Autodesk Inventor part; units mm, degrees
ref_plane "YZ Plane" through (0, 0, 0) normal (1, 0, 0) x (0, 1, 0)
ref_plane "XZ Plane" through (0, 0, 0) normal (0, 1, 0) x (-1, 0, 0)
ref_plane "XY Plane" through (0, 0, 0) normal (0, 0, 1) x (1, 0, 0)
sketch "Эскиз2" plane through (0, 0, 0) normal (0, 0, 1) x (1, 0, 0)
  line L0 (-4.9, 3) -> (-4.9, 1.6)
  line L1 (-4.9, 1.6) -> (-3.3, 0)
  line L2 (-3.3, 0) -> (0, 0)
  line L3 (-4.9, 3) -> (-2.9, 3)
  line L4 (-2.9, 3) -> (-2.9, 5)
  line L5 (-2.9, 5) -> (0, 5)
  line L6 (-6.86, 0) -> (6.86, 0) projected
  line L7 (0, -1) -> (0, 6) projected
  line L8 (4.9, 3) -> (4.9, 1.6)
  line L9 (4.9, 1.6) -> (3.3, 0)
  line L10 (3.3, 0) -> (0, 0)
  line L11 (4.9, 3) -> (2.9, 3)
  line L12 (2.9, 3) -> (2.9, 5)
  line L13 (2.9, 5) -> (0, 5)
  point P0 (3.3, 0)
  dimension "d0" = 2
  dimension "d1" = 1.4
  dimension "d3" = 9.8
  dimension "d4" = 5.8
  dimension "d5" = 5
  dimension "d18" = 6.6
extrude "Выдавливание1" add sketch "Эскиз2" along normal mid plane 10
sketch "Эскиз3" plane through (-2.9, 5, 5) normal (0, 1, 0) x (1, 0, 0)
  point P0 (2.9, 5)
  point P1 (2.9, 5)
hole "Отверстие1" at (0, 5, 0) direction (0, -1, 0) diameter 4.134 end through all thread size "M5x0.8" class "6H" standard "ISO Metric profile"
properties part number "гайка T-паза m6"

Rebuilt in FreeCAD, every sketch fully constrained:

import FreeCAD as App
import Part
import Sketcher
from FreeCAD import Vector

doc = App.newDocument("Part")
body = doc.addObject("PartDesign::Body", "Body")

# Sketch on XY plane
sketch1 = body.newObject("Sketcher::SketchObject", "Sketch")
sketch1.AttachmentSupport = (doc.getObject("XY_Plane"), [""])
sketch1.MapMode = "FlatFace"
sketch1.addGeometry([
    Part.LineSegment(Vector(-2.9, 3, 0), Vector(-4.9, 3, 0)),  # 0
    Part.LineSegment(Vector(-4.9, 3, 0), Vector(-4.9, 1.6, 0)),  # 1
    Part.LineSegment(Vector(-4.9, 1.6, 0), Vector(-3.3, 0, 0)),  # 2
    Part.LineSegment(Vector(-3.3, 0, 0), Vector(3.3, 0, 0)),  # 3
    Part.LineSegment(Vector(3.3, 0, 0), Vector(4.9, 1.6, 0)),  # 4
    Part.LineSegment(Vector(4.9, 1.6, 0), Vector(4.9, 3, 0)),  # 5
    Part.LineSegment(Vector(4.9, 3, 0), Vector(2.9, 3, 0)),  # 6
    Part.LineSegment(Vector(2.9, 3, 0), Vector(2.9, 5, 0)),  # 7
    Part.LineSegment(Vector(2.9, 5, 0), Vector(-2.9, 5, 0)),  # 8
    Part.LineSegment(Vector(-2.9, 5, 0), Vector(-2.9, 3, 0)),  # 9
], False)
sketch1.addConstraint([
    Sketcher.Constraint("Coincident", 0, 2, 1, 1),
    Sketcher.Constraint("Coincident", 1, 2, 2, 1),
    Sketcher.Constraint("Coincident", 2, 2, 3, 1),
    Sketcher.Constraint("Coincident", 3, 2, 4, 1),
    Sketcher.Constraint("Coincident", 4, 2, 5, 1),
    Sketcher.Constraint("Coincident", 5, 2, 6, 1),
    Sketcher.Constraint("Coincident", 6, 2, 7, 1),
    Sketcher.Constraint("Coincident", 7, 2, 8, 1),
    Sketcher.Constraint("Coincident", 8, 2, 9, 1),
    Sketcher.Constraint("Coincident", 9, 2, 0, 1),
    Sketcher.Constraint("Horizontal", 0),
    Sketcher.Constraint("Vertical", 1),
    Sketcher.Constraint("Horizontal", 3),
    Sketcher.Constraint("Vertical", 5),
    Sketcher.Constraint("Horizontal", 6),
    Sketcher.Constraint("Vertical", 7),
    Sketcher.Constraint("Horizontal", 8),
    Sketcher.Constraint("Vertical", 9),
    Sketcher.Constraint("Symmetric", 2, 2, 3, 2, -1, 1),
    Sketcher.Constraint("Symmetric", 1, 2, 4, 2, -2),
    Sketcher.Constraint("Symmetric", 6, 2, 9, 2, -2),
    Sketcher.Constraint("Perpendicular", 2, 4),
    Sketcher.Constraint("Equal", 6, 7),
    Sketcher.Constraint("DistanceX", 0, 2, 0, 1, 2.0),
    Sketcher.Constraint("DistanceX", 3, 1, 3, 2, 6.6),
    Sketcher.Constraint("DistanceX", 8, 2, 8, 1, 5.8),
    Sketcher.Constraint("DistanceY", 1, 2, 1, 1, 1.4),
])
pad1 = body.newObject("PartDesign::Pad", "Pad")
pad1.Profile = sketch1
pad1.Length = 10
pad1.Midplane = True

# Sketch on XZ plane
sketch2 = body.newObject("Sketcher::SketchObject", "Sketch001")
sketch2.AttachmentSupport = (doc.getObject("XZ_Plane"), [""])
sketch2.MapMode = "FlatFace"
sketch2.AttachmentOffset = App.Placement(Vector(0, 0, -5), App.Rotation())
sketch2.addGeometry(Part.Circle(Vector(0, 0, 0), Vector(0, 0, 1), 2.067), False)
sketch2.addConstraint([
    Sketcher.Constraint("Coincident", 0, 3, -1, 1),
    Sketcher.Constraint("Diameter", 0, 4.134),
])
doc.recompute()
hole = body.newObject("PartDesign::Hole", "Hole")
hole.Profile = sketch2
hole.ThreadType = "None"
hole.Diameter = 4.134
hole.DepthType = "ThroughAll"
hole.Reversed = True

doc.recompute()
